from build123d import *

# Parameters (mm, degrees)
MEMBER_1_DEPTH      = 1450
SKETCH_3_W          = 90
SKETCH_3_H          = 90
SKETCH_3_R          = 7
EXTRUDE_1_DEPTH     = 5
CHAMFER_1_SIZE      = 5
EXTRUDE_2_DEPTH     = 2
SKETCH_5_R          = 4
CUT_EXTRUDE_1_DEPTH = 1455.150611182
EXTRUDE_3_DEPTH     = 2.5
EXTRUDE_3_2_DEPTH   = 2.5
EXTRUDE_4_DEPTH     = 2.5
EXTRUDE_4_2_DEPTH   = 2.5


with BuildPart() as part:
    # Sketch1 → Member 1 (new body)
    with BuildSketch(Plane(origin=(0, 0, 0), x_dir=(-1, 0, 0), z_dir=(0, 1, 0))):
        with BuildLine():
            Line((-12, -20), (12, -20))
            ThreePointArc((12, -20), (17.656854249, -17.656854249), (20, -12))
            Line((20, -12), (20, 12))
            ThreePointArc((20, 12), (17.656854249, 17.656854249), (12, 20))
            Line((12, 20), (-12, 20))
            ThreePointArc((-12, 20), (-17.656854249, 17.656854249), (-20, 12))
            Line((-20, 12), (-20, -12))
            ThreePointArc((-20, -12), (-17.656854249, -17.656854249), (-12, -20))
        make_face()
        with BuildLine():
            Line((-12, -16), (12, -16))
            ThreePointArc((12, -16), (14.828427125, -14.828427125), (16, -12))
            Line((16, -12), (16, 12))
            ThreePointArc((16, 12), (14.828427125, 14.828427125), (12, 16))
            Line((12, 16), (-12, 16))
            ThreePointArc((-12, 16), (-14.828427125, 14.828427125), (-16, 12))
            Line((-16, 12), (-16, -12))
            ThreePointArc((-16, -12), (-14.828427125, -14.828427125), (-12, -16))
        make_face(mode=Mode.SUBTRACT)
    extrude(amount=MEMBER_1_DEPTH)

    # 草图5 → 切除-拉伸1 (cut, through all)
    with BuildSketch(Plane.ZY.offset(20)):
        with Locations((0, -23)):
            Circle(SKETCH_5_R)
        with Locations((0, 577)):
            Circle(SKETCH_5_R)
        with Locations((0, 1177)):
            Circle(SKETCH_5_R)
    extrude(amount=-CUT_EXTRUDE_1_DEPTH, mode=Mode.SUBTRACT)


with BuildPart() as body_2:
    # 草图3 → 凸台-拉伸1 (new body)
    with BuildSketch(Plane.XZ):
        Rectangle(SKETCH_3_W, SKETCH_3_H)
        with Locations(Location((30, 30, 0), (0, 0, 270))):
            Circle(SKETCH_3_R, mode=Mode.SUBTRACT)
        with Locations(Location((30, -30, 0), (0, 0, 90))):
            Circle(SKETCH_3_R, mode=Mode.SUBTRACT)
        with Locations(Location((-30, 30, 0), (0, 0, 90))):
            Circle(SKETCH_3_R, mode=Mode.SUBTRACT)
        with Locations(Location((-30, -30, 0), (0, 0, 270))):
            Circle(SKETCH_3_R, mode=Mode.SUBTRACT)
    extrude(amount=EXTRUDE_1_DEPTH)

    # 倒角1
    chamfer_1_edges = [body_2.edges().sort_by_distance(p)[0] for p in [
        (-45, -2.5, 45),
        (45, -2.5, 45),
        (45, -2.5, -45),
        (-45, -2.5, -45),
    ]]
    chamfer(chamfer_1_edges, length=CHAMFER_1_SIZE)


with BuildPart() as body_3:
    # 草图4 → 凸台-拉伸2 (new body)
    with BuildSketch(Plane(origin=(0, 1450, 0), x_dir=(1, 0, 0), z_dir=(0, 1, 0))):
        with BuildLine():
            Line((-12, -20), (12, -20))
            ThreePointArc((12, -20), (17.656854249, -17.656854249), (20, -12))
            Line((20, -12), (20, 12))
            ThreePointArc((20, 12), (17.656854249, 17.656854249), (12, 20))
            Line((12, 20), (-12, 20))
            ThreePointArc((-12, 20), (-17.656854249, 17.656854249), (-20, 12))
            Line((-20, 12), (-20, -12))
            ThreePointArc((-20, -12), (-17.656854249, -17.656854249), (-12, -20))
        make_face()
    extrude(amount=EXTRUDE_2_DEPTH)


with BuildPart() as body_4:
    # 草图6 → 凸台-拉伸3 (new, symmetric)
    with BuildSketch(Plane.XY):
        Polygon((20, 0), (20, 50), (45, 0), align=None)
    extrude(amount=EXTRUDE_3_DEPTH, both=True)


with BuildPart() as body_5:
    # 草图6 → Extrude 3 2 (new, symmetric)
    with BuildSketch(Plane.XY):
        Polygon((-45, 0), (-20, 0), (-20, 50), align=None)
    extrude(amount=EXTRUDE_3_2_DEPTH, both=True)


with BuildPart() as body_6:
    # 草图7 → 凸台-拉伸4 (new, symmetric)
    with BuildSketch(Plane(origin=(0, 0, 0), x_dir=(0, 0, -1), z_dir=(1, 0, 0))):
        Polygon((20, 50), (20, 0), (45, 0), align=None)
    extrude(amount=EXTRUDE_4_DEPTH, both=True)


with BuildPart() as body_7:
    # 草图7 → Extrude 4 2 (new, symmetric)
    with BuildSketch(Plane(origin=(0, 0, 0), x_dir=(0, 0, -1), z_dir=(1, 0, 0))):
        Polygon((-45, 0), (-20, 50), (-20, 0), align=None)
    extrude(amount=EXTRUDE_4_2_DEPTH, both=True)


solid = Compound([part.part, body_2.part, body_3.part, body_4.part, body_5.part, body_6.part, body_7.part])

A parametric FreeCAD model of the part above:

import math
import FreeCAD as App
import Part
import Sketcher
from FreeCAD import Vector


def edges_at(feature, points):
    """Names of the edges that pass closest to the given points."""
    edges = feature.Shape.Edges
    near = lambda p: min(range(len(edges)), key=lambda i: edges[i].distToShape(Part.Vertex(*p))[0])
    return sorted({f"Edge{near(p) + 1}" for p in points})

doc = App.newDocument("Part")
body = doc.addObject("PartDesign::Body", "Body")

sketch1 = body.newObject("Sketcher::SketchObject", "Sketch")
sketch1.AttachmentSupport = (doc.getObject("XZ_Plane"), [""])
sketch1.MapMode = "FlatFace"
sketch1.addGeometry(Part.LineSegment(Vector(12, -20, 0), Vector(-12, -20, 0)), False)
sketch1.addGeometry(Part.ArcOfCircle(Part.Circle(Vector(-12, -12, 0), Vector(0, 0, 1), 8), math.radians(-180), math.radians(-90)), False)
sketch1.addGeometry(Part.LineSegment(Vector(-20, -12, 0), Vector(-20, 12, 0)), False)
sketch1.addGeometry(Part.ArcOfCircle(Part.Circle(Vector(-12, 12, 0), Vector(0, 0, 1), 8), math.radians(90), math.radians(180)), False)
sketch1.addGeometry(Part.LineSegment(Vector(-12, 20, 0), Vector(12, 20, 0)), False)
sketch1.addGeometry(Part.ArcOfCircle(Part.Circle(Vector(12, 12, 0), Vector(0, 0, 1), 8), math.radians(0), math.radians(90)), False)
sketch1.addGeometry(Part.LineSegment(Vector(20, 12, 0), Vector(20, -12, 0)), False)
sketch1.addGeometry(Part.ArcOfCircle(Part.Circle(Vector(12, -12, 0), Vector(0, 0, 1), 8), math.radians(-90), math.radians(0)), False)
sketch1.addGeometry(Part.LineSegment(Vector(-12, -16, 0), Vector(12, -16, 0)), False)
sketch1.addGeometry(Part.ArcOfCircle(Part.Circle(Vector(12, -12, 0), Vector(0, 0, 1), 4), math.radians(-90), math.radians(0)), False)
sketch1.addGeometry(Part.LineSegment(Vector(16, -12, 0), Vector(16, 12, 0)), False)
sketch1.addGeometry(Part.ArcOfCircle(Part.Circle(Vector(12, 12, 0), Vector(0, 0, 1), 4), math.radians(0), math.radians(90)), False)
sketch1.addGeometry(Part.LineSegment(Vector(12, 16, 0), Vector(-12, 16, 0)), False)
sketch1.addGeometry(Part.ArcOfCircle(Part.Circle(Vector(-12, 12, 0), Vector(0, 0, 1), 4), math.radians(90), math.radians(180)), False)
sketch1.addGeometry(Part.LineSegment(Vector(-16, 12, 0), Vector(-16, -12, 0)), False)
sketch1.addGeometry(Part.ArcOfCircle(Part.Circle(Vector(-12, -12, 0), Vector(0, 0, 1), 4), math.radians(180), math.radians(270)), False)
sketch1.addConstraint(Sketcher.Constraint("Tangent", 0, 2, 1, 2))
sketch1.addConstraint(Sketcher.Constraint("Tangent", 1, 1, 2, 1))
sketch1.addConstraint(Sketcher.Constraint("Tangent", 2, 2, 3, 2))
sketch1.addConstraint(Sketcher.Constraint("Tangent", 3, 1, 4, 1))
sketch1.addConstraint(Sketcher.Constraint("Tangent", 4, 2, 5, 2))
sketch1.addConstraint(Sketcher.Constraint("Tangent", 5, 1, 6, 1))
sketch1.addConstraint(Sketcher.Constraint("Tangent", 6, 2, 7, 2))
sketch1.addConstraint(Sketcher.Constraint("Tangent", 7, 1, 0, 1))
sketch1.addConstraint(Sketcher.Constraint("Tangent", 8, 2, 9, 1))
sketch1.addConstraint(Sketcher.Constraint("Tangent", 9, 2, 10, 1))
sketch1.addConstraint(Sketcher.Constraint("Tangent", 10, 2, 11, 1))
sketch1.addConstraint(Sketcher.Constraint("Tangent", 11, 2, 12, 1))
sketch1.addConstraint(Sketcher.Constraint("Tangent", 12, 2, 13, 1))
sketch1.addConstraint(Sketcher.Constraint("Tangent", 13, 2, 14, 1))
sketch1.addConstraint(Sketcher.Constraint("Tangent", 14, 2, 15, 1))
sketch1.addConstraint(Sketcher.Constraint("Tangent", 15, 2, 8, 1))
sketch1.addConstraint(Sketcher.Constraint("Horizontal", 0))
sketch1.addConstraint(Sketcher.Constraint("Vertical", 2))
sketch1.addConstraint(Sketcher.Constraint("Horizontal", 4))
sketch1.addConstraint(Sketcher.Constraint("Vertical", 6))
sketch1.addConstraint(Sketcher.Constraint("Horizontal", 8))
sketch1.addConstraint(Sketcher.Constraint("Vertical", 10))
sketch1.addConstraint(Sketcher.Constraint("Horizontal", 12))
sketch1.addConstraint(Sketcher.Constraint("Vertical", 14))
sketch1.addConstraint(Sketcher.Constraint("Coincident", 9, 3, 7, 3))
sketch1.addConstraint(Sketcher.Constraint("Coincident", 11, 3, 5, 3))
sketch1.addConstraint(Sketcher.Constraint("Coincident", 13, 3, 3, 3))
sketch1.addConstraint(Sketcher.Constraint("Equal", 1, 3))
sketch1.addConstraint(Sketcher.Constraint("Equal", 3, 5))
sketch1.addConstraint(Sketcher.Constraint("Equal", 5, 7))
sketch1.addConstraint(Sketcher.Constraint("Equal", 13, 15))
sketch1.addConstraint(Sketcher.Constraint("Symmetric", 1, 3, 5, 3, -1, 1))
sketch1.addConstraint(Sketcher.Constraint("Equal", 12, 2))
sketch1.addConstraint(Sketcher.Constraint("Radius", 1, 8.0))
sketch1.addConstraint(Sketcher.Constraint("Radius", 9, 4.0))
sketch1.addConstraint(Sketcher.Constraint("DistanceX", 0, 2, 0, 1, 24.0))
pad1 = body.newObject("PartDesign::Pad", "Pad")
pad1.Profile = sketch1
pad1.Length = 1450
pad1.Reversed = True

sketch2 = body.newObject("Sketcher::SketchObject", "Sketch001")
sketch2.AttachmentSupport = (doc.getObject("YZ_Plane"), [""])
sketch2.MapMode = "FlatFace"
sketch2.AttachmentOffset = App.Placement(Vector(0, 0, -20), App.Rotation())
sketch2.addGeometry(Part.Circle(Vector(-23, 0, 0), Vector(0, 0, 1), 4), False)
sketch2.addGeometry(Part.Circle(Vector(577, 0, 0), Vector(0, 0, 1), 4), False)
sketch2.addGeometry(Part.Circle(Vector(1177, 0, 0), Vector(0, 0, 1), 4), False)
sketch2.addConstraint(Sketcher.Constraint("Equal", 0, 1))
sketch2.addConstraint(Sketcher.Constraint("Equal", 1, 2))
sketch2.addConstraint(Sketcher.Constraint("PointOnObject", 0, 3, -1))
sketch2.addConstraint(Sketcher.Constraint("PointOnObject", 1, 3, -1))
sketch2.addConstraint(Sketcher.Constraint("PointOnObject", 2, 3, -1))
sketch2.addConstraint(Sketcher.Constraint("Diameter", 0, 8.0))
sketch2.addConstraint(Sketcher.Constraint("DistanceX", 0, 3, -1, 1, 23.0))
sketch2.addConstraint(Sketcher.Constraint("DistanceX", -1, 1, 1, 3, 577.0))
sketch2.addConstraint(Sketcher.Constraint("DistanceX", -1, 1, 2, 3, 1177.0))
pocket1 = body.newObject("PartDesign::Pocket", "Pocket")
pocket1.Profile = sketch2
pocket1.Type = "ThroughAll"
pocket1.Reversed = True
body2 = doc.addObject("PartDesign::Body", "Body001")

sketch3 = body2.newObject("Sketcher::SketchObject", "Sketch002")
sketch3.AttachmentSupport = (doc.getObject("XZ_Plane001"), [""])
sketch3.MapMode = "FlatFace"
sketch3.addGeometry(Part.LineSegment(Vector(-45, 45, 0), Vector(-45, -45, 0)), False)
sketch3.addGeometry(Part.LineSegment(Vector(-45, -45, 0), Vector(45, -45, 0)), False)
sketch3.addGeometry(Part.LineSegment(Vector(45, -45, 0), Vector(45, 45, 0)), False)
sketch3.addGeometry(Part.LineSegment(Vector(45, 45, 0), Vector(-45, 45, 0)), False)
sketch3.addGeometry(Part.Circle(Vector(-30, -30, 0), Vector(0, 0, 1), 7), False)
sketch3.addGeometry(Part.Circle(Vector(30, -30, 0), Vector(0, 0, 1), 7), False)
sketch3.addGeometry(Part.Circle(Vector(-30, 30, 0), Vector(0, 0, 1), 7), False)
sketch3.addGeometry(Part.Circle(Vector(30, 30, 0), Vector(0, 0, 1), 7), False)
sketch3.addConstraint(Sketcher.Constraint("Coincident", 0, 2, 1, 1))
sketch3.addConstraint(Sketcher.Constraint("Coincident", 1, 2, 2, 1))
sketch3.addConstraint(Sketcher.Constraint("Coincident", 2, 2, 3, 1))
sketch3.addConstraint(Sketcher.Constraint("Coincident", 3, 2, 0, 1))
sketch3.addConstraint(Sketcher.Constraint("Vertical", 0))
sketch3.addConstraint(Sketcher.Constraint("Horizontal", 1))
sketch3.addConstraint(Sketcher.Constraint("Vertical", 2))
sketch3.addConstraint(Sketcher.Constraint("Horizontal", 3))
sketch3.addConstraint(Sketcher.Constraint("Equal", 4, 5))
sketch3.addConstraint(Sketcher.Constraint("Equal", 5, 6))
sketch3.addConstraint(Sketcher.Constraint("Equal", 6, 7))
sketch3.addConstraint(Sketcher.Constraint("Symmetric", 5, 3, 6, 3, -1, 1))
sketch3.addConstraint(Sketcher.Constraint("Symmetric", 4, 3, 7, 3, -1, 1))
sketch3.addConstraint(Sketcher.Constraint("Symmetric", 0, 2, 2, 2, -1, 1))
sketch3.addConstraint(Sketcher.Constraint("Symmetric", 4, 3, 5, 3, -2))
sketch3.addConstraint(Sketcher.Constraint("Equal", 3, 0))
sketch3.addConstraint(Sketcher.Constraint("Diameter", 4, 14.0))
sketch3.addConstraint(Sketcher.Constraint("DistanceX", 1, 1, 1, 2, 90.0))
sketch3.addConstraint(Sketcher.Constraint("DistanceX", 4, 3, -1, 1, 30.0))
sketch3.addConstraint(Sketcher.Constraint("DistanceY", 4, 3, -1, 1, 30.0))
pad2 = body2.newObject("PartDesign::Pad", "Pad001")
pad2.Profile = sketch3
pad2.Length = 5
doc.recompute()

chamfer = body2.newObject("PartDesign::Chamfer", "Chamfer")
chamfer.Base = (pad2, edges_at(pad2, [
    (-45, -2.5, 45),
    (45, -2.5, 45),
    (45, -2.5, -45),
    (-45, -2.5, -45),
]))
chamfer.Size = 5
body3 = doc.addObject("PartDesign::Body", "Body002")

sketch4 = body3.newObject("Sketcher::SketchObject", "Sketch003")
sketch4.AttachmentSupport = (doc.getObject("XZ_Plane002"), [""])
sketch4.MapMode = "FlatFace"
sketch4.AttachmentOffset = App.Placement(Vector(0, 0, -1450), App.Rotation())
sketch4.addGeometry(Part.LineSegment(Vector(-12, 20, 0), Vector(12, 20, 0)), False)
sketch4.addGeometry(Part.ArcOfCircle(Part.Circle(Vector(12, 12, 0), Vector(0, 0, 1), 8), math.radians(0), math.radians(90)), False)
sketch4.addGeometry(Part.LineSegment(Vector(20, 12, 0), Vector(20, -12, 0)), False)
sketch4.addGeometry(Part.ArcOfCircle(Part.Circle(Vector(12, -12, 0), Vector(0, 0, 1), 8), math.radians(-90), math.radians(0)), False)
sketch4.addGeometry(Part.LineSegment(Vector(12, -20, 0), Vector(-12, -20, 0)), False)
sketch4.addGeometry(Part.ArcOfCircle(Part.Circle(Vector(-12, -12, 0), Vector(0, 0, 1), 8), math.radians(-180), math.radians(-90)), False)
sketch4.addGeometry(Part.LineSegment(Vector(-20, -12, 0), Vector(-20, 12, 0)), False)
sketch4.addGeometry(Part.ArcOfCircle(Part.Circle(Vector(-12, 12, 0), Vector(0, 0, 1), 8), math.radians(90), math.radians(180)), False)
sketch4.addConstraint(Sketcher.Constraint("Tangent", 0, 2, 1, 2))
sketch4.addConstraint(Sketcher.Constraint("Tangent", 1, 1, 2, 1))
sketch4.addConstraint(Sketcher.Constraint("Tangent", 2, 2, 3, 2))
sketch4.addConstraint(Sketcher.Constraint("Tangent", 3, 1, 4, 1))
sketch4.addConstraint(Sketcher.Constraint("Tangent", 4, 2, 5, 2))
sketch4.addConstraint(Sketcher.Constraint("Tangent", 5, 1, 6, 1))
sketch4.addConstraint(Sketcher.Constraint("Tangent", 6, 2, 7, 2))
sketch4.addConstraint(Sketcher.Constraint("Tangent", 7, 1, 0, 1))
sketch4.addConstraint(Sketcher.Constraint("Horizontal", 0))
sketch4.addConstraint(Sketcher.Constraint("Vertical", 2))
sketch4.addConstraint(Sketcher.Constraint("Horizontal", 4))
sketch4.addConstraint(Sketcher.Constraint("Vertical", 6))
sketch4.addConstraint(Sketcher.Constraint("Equal", 1, 3))
sketch4.addConstraint(Sketcher.Constraint("Equal", 3, 5))
sketch4.addConstraint(Sketcher.Constraint("Equal", 5, 7))
sketch4.addConstraint(Sketcher.Constraint("Symmetric", 1, 3, 5, 3, -1, 1))
sketch4.addConstraint(Sketcher.Constraint("Equal", 4, 2))
sketch4.addConstraint(Sketcher.Constraint("Radius", 1, 8.0))
sketch4.addConstraint(Sketcher.Constraint("DistanceX", 0, 1, 0, 2, 24.0))
pad3 = body3.newObject("PartDesign::Pad", "Pad002")
pad3.Profile = sketch4
pad3.Length = 2
pad3.Reversed = True
body4 = doc.addObject("PartDesign::Body", "Body003")

sketch5 = body4.newObject("Sketcher::SketchObject", "Sketch004")
sketch5.AttachmentSupport = (doc.getObject("XY_Plane003"), [""])
sketch5.MapMode = "FlatFace"
sketch5.addGeometry(Part.LineSegment(Vector(20, 50, 0), Vector(20, 0, 0)), False)
sketch5.addGeometry(Part.LineSegment(Vector(20, 0, 0), Vector(45, 0, 0)), False)
sketch5.addGeometry(Part.LineSegment(Vector(45, 0, 0), Vector(20, 50, 0)), False)
sketch5.addConstraint(Sketcher.Constraint("Coincident", 0, 2, 1, 1))
sketch5.addConstraint(Sketcher.Constraint("Coincident", 1, 2, 2, 1))
sketch5.addConstraint(Sketcher.Constraint("Coincident", 2, 2, 0, 1))
sketch5.addConstraint(Sketcher.Constraint("Vertical", 0))
sketch5.addConstraint(Sketcher.Constraint("Horizontal", 1))
sketch5.addConstraint(Sketcher.Constraint("PointOnObject", 0, 2, -1))
sketch5.addConstraint(Sketcher.Constraint("DistanceX", 1, 1, 1, 2, 25.0))
sketch5.addConstraint(Sketcher.Constraint("DistanceY", 0, 2, 0, 1, 50.0))
sketch5.addConstraint(Sketcher.Constraint("DistanceX", -1, 1, 0, 2, 20.0))
pad4 = body4.newObject("PartDesign::Pad", "Pad003")
pad4.Profile = sketch5
pad4.Length = 5
pad4.Midplane = True
body5 = doc.addObject("PartDesign::Body", "Body004")

sketch6 = body5.newObject("Sketcher::SketchObject", "Sketch005")
sketch6.AttachmentSupport = (doc.getObject("XY_Plane004"), [""])
sketch6.MapMode = "FlatFace"
sketch6.addGeometry(Part.LineSegment(Vector(-45, 0, 0), Vector(-20, 0, 0)), False)
sketch6.addGeometry(Part.LineSegment(Vector(-20, 0, 0), Vector(-20, 50, 0)), False)
sketch6.addGeometry(Part.LineSegment(Vector(-20, 50, 0), Vector(-45, 0, 0)), False)
sketch6.addConstraint(Sketcher.Constraint("Coincident", 0, 2, 1, 1))
sketch6.addConstraint(Sketcher.Constraint("Coincident", 1, 2, 2, 1))
sketch6.addConstraint(Sketcher.Constraint("Coincident", 2, 2, 0, 1))
sketch6.addConstraint(Sketcher.Constraint("Horizontal", 0))
sketch6.addConstraint(Sketcher.Constraint("Vertical", 1))
sketch6.addConstraint(Sketcher.Constraint("PointOnObject", 0, 2, -1))
sketch6.addConstraint(Sketcher.Constraint("DistanceX", 0, 1, 0, 2, 25.0))
sketch6.addConstraint(Sketcher.Constraint("DistanceY", 1, 1, 1, 2, 50.0))
sketch6.addConstraint(Sketcher.Constraint("DistanceX", 0, 2, -1, 1, 20.0))
pad5 = body5.newObject("PartDesign::Pad", "Pad004")
pad5.Profile = sketch6
pad5.Length = 5
pad5.Midplane = True
body6 = doc.addObject("PartDesign::Body", "Body005")

sketch7 = body6.newObject("Sketcher::SketchObject", "Sketch006")
sketch7.AttachmentSupport = (doc.getObject("YZ_Plane005"), [""])
sketch7.MapMode = "FlatFace"
sketch7.addGeometry(Part.LineSegment(Vector(50, -20, 0), Vector(0, -20, 0)), False)
sketch7.addGeometry(Part.LineSegment(Vector(0, -20, 0), Vector(0, -45, 0)), False)
sketch7.addGeometry(Part.LineSegment(Vector(0, -45, 0), Vector(50, -20, 0)), False)
sketch7.addConstraint(Sketcher.Constraint("Coincident", 0, 2, 1, 1))
sketch7.addConstraint(Sketcher.Constraint("Coincident", 1, 2, 2, 1))
sketch7.addConstraint(Sketcher.Constraint("Coincident", 2, 2, 0, 1))
sketch7.addConstraint(Sketcher.Constraint("Horizontal", 0))
sketch7.addConstraint(Sketcher.Constraint("Vertical", 1))
sketch7.addConstraint(Sketcher.Constraint("PointOnObject", 0, 2, -2))
sketch7.addConstraint(Sketcher.Constraint("DistanceX", 0, 2, 0, 1, 50.0))
sketch7.addConstraint(Sketcher.Constraint("DistanceY", 1, 2, 1, 1, 25.0))
sketch7.addConstraint(Sketcher.Constraint("DistanceY", 0, 2, -1, 1, 20.0))
pad6 = body6.newObject("PartDesign::Pad", "Pad005")
pad6.Profile = sketch7
pad6.Length = 5
pad6.Midplane = True
body7 = doc.addObject("PartDesign::Body", "Body006")

sketch8 = body7.newObject("Sketcher::SketchObject", "Sketch007")
sketch8.AttachmentSupport = (doc.getObject("YZ_Plane006"), [""])
sketch8.MapMode = "FlatFace"
sketch8.addGeometry(Part.LineSegment(Vector(50, 20, 0), Vector(0, 45, 0)), False)
sketch8.addGeometry(Part.LineSegment(Vector(0, 45, 0), Vector(0, 20, 0)), False)
sketch8.addGeometry(Part.LineSegment(Vector(0, 20, 0), Vector(50, 20, 0)), False)
sketch8.addConstraint(Sketcher.Constraint("Coincident", 0, 2, 1, 1))
sketch8.addConstraint(Sketcher.Constraint("Coincident", 1, 2, 2, 1))
sketch8.addConstraint(Sketcher.Constraint("Coincident", 2, 2, 0, 1))
sketch8.addConstraint(Sketcher.Constraint("Vertical", 1))
sketch8.addConstraint(Sketcher.Constraint("Horizontal", 2))
sketch8.addConstraint(Sketcher.Constraint("PointOnObject", 0, 2, -2))
sketch8.addConstraint(Sketcher.Constraint("DistanceX", 2, 1, 2, 2, 50.0))
sketch8.addConstraint(Sketcher.Constraint("DistanceY", 1, 2, 1, 1, 25.0))
sketch8.addConstraint(Sketcher.Constraint("DistanceY", -1, 1, 0, 2, 45.0))
pad7 = body7.newObject("PartDesign::Pad", "Pad006")
pad7.Profile = sketch8
pad7.Length = 5
pad7.Midplane = True

doc.recompute()
